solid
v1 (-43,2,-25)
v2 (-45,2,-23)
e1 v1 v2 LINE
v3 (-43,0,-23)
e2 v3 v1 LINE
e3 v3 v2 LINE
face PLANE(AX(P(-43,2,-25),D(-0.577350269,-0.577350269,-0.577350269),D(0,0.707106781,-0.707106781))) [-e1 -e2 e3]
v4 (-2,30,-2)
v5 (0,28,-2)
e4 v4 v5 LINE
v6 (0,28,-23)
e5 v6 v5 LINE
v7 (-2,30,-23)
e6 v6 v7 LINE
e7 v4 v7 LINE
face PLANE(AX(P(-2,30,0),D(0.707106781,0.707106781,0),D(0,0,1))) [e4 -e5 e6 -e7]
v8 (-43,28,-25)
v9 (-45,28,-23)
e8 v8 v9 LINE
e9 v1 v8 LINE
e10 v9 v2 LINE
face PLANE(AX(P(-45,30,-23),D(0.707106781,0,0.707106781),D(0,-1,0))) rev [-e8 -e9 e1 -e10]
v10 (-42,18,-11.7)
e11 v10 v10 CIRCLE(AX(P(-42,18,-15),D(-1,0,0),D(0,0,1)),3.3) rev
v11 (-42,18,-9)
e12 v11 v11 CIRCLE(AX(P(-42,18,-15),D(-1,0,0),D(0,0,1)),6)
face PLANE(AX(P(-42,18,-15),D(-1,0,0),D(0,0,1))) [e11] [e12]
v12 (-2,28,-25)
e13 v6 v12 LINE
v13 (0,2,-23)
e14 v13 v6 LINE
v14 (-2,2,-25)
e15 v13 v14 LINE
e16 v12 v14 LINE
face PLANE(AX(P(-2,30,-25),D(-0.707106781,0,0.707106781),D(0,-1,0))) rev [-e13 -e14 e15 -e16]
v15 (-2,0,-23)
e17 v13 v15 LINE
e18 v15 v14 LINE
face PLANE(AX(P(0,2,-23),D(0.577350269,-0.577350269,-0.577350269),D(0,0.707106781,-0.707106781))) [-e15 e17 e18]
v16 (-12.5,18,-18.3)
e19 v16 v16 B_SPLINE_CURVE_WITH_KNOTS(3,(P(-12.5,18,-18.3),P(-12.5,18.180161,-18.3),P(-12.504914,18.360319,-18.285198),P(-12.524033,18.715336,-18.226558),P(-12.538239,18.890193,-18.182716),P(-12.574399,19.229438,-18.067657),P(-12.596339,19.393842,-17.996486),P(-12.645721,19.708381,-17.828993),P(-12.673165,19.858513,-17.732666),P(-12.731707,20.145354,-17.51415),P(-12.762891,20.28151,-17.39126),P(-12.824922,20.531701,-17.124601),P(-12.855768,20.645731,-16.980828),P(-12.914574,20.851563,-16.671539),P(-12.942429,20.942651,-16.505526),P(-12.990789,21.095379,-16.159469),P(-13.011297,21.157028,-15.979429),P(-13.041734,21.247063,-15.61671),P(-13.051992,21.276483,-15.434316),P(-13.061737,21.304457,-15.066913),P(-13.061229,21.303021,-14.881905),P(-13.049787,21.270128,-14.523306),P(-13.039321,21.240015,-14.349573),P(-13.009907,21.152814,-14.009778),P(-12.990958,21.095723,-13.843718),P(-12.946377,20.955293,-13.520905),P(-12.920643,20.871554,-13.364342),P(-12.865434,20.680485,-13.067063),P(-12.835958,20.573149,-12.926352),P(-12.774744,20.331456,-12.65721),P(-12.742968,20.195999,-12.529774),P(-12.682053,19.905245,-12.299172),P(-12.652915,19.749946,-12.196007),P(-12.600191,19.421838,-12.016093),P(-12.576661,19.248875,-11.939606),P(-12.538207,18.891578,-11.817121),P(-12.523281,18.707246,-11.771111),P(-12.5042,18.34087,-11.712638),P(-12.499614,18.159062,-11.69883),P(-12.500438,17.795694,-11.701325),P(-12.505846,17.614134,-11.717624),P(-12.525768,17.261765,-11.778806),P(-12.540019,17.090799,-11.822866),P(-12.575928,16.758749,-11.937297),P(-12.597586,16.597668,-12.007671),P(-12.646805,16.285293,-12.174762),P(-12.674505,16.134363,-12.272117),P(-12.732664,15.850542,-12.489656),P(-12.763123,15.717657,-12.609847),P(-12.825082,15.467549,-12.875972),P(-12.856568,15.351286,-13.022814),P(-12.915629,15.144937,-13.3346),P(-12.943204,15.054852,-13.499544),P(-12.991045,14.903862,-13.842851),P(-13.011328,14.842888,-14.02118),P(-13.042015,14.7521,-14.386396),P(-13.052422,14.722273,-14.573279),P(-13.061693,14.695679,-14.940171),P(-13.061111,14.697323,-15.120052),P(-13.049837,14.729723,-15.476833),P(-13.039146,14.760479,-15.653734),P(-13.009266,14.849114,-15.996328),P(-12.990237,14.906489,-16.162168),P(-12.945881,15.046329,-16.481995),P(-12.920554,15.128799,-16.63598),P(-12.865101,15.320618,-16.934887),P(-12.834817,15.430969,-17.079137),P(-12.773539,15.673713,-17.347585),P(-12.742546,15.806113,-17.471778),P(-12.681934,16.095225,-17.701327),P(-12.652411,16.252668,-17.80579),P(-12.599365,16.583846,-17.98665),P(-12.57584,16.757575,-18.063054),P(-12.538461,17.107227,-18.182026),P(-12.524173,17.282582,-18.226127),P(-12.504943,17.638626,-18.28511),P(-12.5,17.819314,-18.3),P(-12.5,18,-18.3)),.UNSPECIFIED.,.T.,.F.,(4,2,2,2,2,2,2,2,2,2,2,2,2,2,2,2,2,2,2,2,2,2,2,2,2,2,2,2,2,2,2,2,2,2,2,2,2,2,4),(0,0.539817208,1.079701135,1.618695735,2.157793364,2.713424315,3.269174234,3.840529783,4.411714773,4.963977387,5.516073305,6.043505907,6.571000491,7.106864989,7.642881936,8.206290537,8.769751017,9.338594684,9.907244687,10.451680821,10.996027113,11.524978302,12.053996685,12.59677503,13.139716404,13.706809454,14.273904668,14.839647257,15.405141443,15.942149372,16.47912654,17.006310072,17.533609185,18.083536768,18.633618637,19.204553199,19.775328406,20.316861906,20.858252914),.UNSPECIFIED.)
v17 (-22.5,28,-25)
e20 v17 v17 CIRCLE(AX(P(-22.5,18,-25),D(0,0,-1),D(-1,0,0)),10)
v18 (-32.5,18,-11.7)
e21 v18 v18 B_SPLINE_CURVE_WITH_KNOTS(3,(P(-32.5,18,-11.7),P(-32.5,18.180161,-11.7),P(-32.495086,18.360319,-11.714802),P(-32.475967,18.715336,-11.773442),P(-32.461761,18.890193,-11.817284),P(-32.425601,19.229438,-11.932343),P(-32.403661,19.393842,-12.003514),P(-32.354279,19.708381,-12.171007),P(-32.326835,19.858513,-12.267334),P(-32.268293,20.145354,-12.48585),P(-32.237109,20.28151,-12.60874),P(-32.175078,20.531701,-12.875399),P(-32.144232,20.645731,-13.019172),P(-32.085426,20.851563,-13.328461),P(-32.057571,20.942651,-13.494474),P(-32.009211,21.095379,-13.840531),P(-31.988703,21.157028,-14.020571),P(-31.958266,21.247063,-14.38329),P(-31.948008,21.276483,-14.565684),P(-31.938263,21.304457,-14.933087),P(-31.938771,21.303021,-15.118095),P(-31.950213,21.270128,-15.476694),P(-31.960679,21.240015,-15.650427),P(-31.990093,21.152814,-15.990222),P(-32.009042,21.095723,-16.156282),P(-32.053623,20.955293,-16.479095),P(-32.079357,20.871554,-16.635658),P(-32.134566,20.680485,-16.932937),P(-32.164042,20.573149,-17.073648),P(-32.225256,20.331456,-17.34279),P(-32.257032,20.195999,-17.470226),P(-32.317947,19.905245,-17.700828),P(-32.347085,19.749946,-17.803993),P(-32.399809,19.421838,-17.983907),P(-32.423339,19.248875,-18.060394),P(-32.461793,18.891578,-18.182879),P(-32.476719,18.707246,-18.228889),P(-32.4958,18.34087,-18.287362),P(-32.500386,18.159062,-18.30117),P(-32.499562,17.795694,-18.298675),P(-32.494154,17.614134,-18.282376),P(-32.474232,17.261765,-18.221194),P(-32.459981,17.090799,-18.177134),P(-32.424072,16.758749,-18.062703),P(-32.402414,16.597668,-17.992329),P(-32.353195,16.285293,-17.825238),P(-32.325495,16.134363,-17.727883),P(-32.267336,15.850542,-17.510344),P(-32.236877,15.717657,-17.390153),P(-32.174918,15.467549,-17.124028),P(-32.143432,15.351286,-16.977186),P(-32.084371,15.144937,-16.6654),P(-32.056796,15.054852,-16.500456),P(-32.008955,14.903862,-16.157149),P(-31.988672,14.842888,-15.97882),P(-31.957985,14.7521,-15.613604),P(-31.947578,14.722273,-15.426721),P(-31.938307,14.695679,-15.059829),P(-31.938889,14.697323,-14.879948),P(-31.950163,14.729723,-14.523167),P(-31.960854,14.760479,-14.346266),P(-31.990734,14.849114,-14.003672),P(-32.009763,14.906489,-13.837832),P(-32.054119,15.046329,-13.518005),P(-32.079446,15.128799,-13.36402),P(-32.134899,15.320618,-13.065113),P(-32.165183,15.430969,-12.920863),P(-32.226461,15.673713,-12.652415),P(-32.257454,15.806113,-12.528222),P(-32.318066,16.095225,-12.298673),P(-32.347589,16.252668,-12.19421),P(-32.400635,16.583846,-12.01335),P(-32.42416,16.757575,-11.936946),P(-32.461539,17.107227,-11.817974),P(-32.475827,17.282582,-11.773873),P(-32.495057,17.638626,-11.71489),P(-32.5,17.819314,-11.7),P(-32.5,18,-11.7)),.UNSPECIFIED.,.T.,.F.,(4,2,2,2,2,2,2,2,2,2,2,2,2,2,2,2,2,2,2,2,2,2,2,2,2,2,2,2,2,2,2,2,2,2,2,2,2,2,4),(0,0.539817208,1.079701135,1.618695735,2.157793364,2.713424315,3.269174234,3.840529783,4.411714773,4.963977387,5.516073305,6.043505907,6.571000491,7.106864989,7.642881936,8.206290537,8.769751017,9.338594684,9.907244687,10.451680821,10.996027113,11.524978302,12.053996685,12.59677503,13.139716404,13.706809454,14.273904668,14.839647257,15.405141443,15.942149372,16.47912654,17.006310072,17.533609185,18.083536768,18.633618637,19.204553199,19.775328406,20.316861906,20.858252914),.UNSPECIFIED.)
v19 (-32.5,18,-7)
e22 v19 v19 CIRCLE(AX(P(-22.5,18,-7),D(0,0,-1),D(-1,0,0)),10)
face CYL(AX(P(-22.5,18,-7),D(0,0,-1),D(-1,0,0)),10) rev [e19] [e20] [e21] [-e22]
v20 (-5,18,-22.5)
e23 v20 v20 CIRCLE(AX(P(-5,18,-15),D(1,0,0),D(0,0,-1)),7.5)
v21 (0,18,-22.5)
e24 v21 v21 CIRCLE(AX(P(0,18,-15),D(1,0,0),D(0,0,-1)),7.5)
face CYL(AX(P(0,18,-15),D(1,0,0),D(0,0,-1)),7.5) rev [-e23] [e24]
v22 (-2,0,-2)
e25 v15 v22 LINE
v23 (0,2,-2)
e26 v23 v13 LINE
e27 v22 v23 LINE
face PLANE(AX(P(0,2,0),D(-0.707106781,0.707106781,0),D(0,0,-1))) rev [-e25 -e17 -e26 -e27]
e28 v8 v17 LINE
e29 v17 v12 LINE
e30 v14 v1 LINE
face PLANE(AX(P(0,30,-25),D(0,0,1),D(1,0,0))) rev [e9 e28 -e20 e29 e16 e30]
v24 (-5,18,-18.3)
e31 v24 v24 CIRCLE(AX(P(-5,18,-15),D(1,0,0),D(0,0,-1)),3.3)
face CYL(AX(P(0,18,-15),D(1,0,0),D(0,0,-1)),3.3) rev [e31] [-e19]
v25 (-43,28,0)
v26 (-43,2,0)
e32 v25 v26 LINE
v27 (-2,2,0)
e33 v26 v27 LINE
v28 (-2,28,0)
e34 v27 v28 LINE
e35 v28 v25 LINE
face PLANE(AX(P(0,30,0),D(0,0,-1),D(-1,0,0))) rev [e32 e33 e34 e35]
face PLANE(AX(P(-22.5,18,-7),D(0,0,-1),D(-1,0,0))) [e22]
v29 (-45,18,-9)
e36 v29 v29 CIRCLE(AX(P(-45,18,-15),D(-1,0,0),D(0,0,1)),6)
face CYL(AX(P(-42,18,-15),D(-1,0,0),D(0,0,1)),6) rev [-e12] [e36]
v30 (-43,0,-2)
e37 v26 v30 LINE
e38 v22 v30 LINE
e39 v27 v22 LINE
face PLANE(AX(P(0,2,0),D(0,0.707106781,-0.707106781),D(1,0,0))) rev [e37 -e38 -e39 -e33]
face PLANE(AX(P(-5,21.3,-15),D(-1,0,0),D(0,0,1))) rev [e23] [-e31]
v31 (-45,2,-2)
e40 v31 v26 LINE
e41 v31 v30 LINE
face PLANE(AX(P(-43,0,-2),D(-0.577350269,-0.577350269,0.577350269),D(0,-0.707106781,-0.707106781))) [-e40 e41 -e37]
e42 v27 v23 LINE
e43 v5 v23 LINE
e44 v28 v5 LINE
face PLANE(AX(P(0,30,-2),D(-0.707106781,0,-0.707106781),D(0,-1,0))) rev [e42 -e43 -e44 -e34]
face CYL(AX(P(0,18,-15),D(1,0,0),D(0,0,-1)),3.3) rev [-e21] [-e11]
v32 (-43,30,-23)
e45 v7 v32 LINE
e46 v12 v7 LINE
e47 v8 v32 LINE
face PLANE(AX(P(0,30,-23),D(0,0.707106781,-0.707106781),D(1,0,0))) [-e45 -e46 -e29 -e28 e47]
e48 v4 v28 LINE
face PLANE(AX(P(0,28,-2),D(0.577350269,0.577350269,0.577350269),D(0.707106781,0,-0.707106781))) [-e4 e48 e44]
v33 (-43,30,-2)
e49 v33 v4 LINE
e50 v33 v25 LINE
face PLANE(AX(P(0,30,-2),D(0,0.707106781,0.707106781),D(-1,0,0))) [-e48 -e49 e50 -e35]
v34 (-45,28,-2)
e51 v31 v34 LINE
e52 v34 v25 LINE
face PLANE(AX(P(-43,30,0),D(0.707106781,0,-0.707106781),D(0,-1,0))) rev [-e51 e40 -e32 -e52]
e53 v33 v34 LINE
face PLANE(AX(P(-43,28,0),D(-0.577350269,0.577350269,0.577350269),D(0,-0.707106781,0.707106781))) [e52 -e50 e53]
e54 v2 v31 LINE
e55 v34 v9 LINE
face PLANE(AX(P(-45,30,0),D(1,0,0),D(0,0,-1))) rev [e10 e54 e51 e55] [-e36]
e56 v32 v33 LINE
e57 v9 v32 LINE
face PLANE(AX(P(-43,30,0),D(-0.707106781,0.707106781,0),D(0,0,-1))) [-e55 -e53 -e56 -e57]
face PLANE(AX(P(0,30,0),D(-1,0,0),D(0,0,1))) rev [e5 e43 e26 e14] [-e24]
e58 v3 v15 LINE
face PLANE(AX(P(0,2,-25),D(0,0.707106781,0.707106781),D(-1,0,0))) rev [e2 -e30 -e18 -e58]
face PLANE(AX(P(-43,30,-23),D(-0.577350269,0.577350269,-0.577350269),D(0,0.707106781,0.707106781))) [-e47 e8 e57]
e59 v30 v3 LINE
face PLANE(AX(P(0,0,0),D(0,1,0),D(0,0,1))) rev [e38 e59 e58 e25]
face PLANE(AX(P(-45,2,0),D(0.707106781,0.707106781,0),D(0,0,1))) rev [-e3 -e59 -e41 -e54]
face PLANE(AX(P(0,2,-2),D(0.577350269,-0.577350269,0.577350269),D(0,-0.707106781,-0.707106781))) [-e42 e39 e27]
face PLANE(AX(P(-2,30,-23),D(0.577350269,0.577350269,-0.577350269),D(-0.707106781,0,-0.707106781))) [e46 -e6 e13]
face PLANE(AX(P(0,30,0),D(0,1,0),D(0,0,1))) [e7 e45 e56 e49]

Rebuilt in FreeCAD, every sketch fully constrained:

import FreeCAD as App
import Part
import Sketcher
Q = App.Units.Quantity


def edges_at(feature, points):
    """Names of the edges that pass closest to the given points."""
    edges = feature.Shape.Edges
    near = lambda p: min(range(len(edges)), key=lambda i: edges[i].distToShape(Part.Vertex(*p))[0])
    return sorted({f"Edge{near(p) + 1}" for p in points})


def add_polygon(sketch, points):
    """Adds a closed chain of lines whose ends are joined by coincident constraints."""
    first, n = sketch.GeometryCount, len(points)
    for a, b in zip(points, points[1:] + points[:1]):
        sketch.addGeometry(Part.LineSegment(App.Vector(*a, 0), App.Vector(*b, 0)), False)
    for i in range(n):
        sketch.addConstraint(Sketcher.Constraint("Coincident", first + i, 2, first + (i + 1) % n, 1))

doc = App.newDocument("Part")
body = doc.addObject("PartDesign::Body", "Body")

# Sketch on XZ plane
sketch1 = body.newObject("Sketcher::SketchObject", "Sketch")
sketch1.AttachmentSupport = (doc.getObject("XZ_Plane"), [""])
sketch1.MapMode = "FlatFace"
add_polygon(sketch1, [(-45, 0), (0, 0), (0, -25), (-45, -25)])  # lines 0-3
sketch1.addConstraint(Sketcher.Constraint("Horizontal", 0))
sketch1.addConstraint(Sketcher.Constraint("Vertical", 1))
sketch1.addConstraint(Sketcher.Constraint("Horizontal", 2))
sketch1.addConstraint(Sketcher.Constraint("Vertical", 3))
sketch1.addConstraint(Sketcher.Constraint("Coincident", 0, 2, -1, 1))
sketch1.addConstraint(Sketcher.Constraint("DistanceX", 0, 1, 0, 2, Q("45 mm")))
sketch1.addConstraint(Sketcher.Constraint("DistanceY", 1, 2, 1, 1, Q("25 mm")))
pad1 = body.newObject("PartDesign::Pad", "Pad")
pad1.Profile = sketch1
pad1.Length = 30
pad1.Reversed = True

# Sketch on XY plane
sketch2 = body.newObject("Sketcher::SketchObject", "Sketch001")
sketch2.AttachmentSupport = (doc.getObject("XY_Plane"), [""])
sketch2.MapMode = "FlatFace"
sketch2.AttachmentOffset = App.Placement(App.Vector(0, 0, -25), App.Rotation())
sketch2.addGeometry(Part.Circle(App.Vector(-22, 18, 0), App.Vector(0, 0, 1), 10), False)
sketch2.addConstraint(Sketcher.Constraint("Diameter", 0, Q("20 mm")))
sketch2.addConstraint(Sketcher.Constraint("DistanceY", -1, 1, 0, 3, Q("18 mm")))
sketch2.addConstraint(Sketcher.Constraint("DistanceX", 0, 3, -1, 1, Q("22.5 mm")))
pocket1 = body.newObject("PartDesign::Pocket", "Pocket")
pocket1.Profile = sketch2
pocket1.Length = 18
pocket1.Reversed = True

# Sketch on YZ plane
sketch3 = body.newObject("Sketcher::SketchObject", "Sketch002")
sketch3.AttachmentSupport = (doc.getObject("YZ_Plane"), [""])
sketch3.MapMode = "FlatFace"
sketch3.addGeometry(Part.Circle(App.Vector(18, -15, 0), App.Vector(0, 0, 1), 3.3), False)
sketch3.addConstraint(Sketcher.Constraint("Diameter", 0, Q("6.6 mm")))
sketch3.addConstraint(Sketcher.Constraint("DistanceX", -1, 1, 0, 3, Q("18 mm")))
sketch3.addConstraint(Sketcher.Constraint("DistanceY", 0, 3, -1, 1, Q("15 mm")))
doc.recompute()
hole = body.newObject("PartDesign::Hole", "Hole")
hole.Profile = sketch3
hole.ThreadType = "None"
hole.Diameter = 6.6
hole.DepthType = "Dimension"
hole.Depth = 80
hole.DrillPoint = "Angled"
hole.DrillPointAngle = 118
hole.HoleCutType = "Counterbore"
hole.HoleCutDiameter = 15
hole.HoleCutDepth = 5
doc.recompute()

chamfer = body.newObject("PartDesign::Chamfer", "Chamfer")
chamfer.Base = (hole, edges_at(hole, [
    (-45, 30, -12.5),
    (-22.5, 30, 0),
    (0, 30, -12.5),
    (-22.5, 0, 0),
    (-45, 0, -12.5),
    (-22.5, 0, -25),
    (0, 0, -12.5),
    (0, 15, 0),
    (-45, 15, 0),
    (-45, 15, -25),
    (0, 15, -25),
    (-22.5, 30, -25),
]))
chamfer.Size = 2

# Sketch on YZ plane
sketch4 = body.newObject("Sketcher::SketchObject", "Sketch003")
sketch4.AttachmentSupport = (doc.getObject("YZ_Plane"), [""])
sketch4.MapMode = "FlatFace"
sketch4.AttachmentOffset = App.Placement(App.Vector(0, 0, -45), App.Rotation())
sketch4.addGeometry(Part.Circle(App.Vector(18, -15, 0), App.Vector(0, 0, 1), 6), False)
sketch4.addConstraint(Sketcher.Constraint("Diameter", 0, Q("12 mm")))
sketch4.addConstraint(Sketcher.Constraint("DistanceX", -1, 1, 0, 3, Q("18 mm")))
sketch4.addConstraint(Sketcher.Constraint("DistanceY", 0, 3, -1, 1, Q("15 mm")))
pocket2 = body.newObject("PartDesign::Pocket", "Pocket001")
pocket2.Profile = sketch4
pocket2.Length = 3
pocket2.Reversed = True

doc.recompute()
